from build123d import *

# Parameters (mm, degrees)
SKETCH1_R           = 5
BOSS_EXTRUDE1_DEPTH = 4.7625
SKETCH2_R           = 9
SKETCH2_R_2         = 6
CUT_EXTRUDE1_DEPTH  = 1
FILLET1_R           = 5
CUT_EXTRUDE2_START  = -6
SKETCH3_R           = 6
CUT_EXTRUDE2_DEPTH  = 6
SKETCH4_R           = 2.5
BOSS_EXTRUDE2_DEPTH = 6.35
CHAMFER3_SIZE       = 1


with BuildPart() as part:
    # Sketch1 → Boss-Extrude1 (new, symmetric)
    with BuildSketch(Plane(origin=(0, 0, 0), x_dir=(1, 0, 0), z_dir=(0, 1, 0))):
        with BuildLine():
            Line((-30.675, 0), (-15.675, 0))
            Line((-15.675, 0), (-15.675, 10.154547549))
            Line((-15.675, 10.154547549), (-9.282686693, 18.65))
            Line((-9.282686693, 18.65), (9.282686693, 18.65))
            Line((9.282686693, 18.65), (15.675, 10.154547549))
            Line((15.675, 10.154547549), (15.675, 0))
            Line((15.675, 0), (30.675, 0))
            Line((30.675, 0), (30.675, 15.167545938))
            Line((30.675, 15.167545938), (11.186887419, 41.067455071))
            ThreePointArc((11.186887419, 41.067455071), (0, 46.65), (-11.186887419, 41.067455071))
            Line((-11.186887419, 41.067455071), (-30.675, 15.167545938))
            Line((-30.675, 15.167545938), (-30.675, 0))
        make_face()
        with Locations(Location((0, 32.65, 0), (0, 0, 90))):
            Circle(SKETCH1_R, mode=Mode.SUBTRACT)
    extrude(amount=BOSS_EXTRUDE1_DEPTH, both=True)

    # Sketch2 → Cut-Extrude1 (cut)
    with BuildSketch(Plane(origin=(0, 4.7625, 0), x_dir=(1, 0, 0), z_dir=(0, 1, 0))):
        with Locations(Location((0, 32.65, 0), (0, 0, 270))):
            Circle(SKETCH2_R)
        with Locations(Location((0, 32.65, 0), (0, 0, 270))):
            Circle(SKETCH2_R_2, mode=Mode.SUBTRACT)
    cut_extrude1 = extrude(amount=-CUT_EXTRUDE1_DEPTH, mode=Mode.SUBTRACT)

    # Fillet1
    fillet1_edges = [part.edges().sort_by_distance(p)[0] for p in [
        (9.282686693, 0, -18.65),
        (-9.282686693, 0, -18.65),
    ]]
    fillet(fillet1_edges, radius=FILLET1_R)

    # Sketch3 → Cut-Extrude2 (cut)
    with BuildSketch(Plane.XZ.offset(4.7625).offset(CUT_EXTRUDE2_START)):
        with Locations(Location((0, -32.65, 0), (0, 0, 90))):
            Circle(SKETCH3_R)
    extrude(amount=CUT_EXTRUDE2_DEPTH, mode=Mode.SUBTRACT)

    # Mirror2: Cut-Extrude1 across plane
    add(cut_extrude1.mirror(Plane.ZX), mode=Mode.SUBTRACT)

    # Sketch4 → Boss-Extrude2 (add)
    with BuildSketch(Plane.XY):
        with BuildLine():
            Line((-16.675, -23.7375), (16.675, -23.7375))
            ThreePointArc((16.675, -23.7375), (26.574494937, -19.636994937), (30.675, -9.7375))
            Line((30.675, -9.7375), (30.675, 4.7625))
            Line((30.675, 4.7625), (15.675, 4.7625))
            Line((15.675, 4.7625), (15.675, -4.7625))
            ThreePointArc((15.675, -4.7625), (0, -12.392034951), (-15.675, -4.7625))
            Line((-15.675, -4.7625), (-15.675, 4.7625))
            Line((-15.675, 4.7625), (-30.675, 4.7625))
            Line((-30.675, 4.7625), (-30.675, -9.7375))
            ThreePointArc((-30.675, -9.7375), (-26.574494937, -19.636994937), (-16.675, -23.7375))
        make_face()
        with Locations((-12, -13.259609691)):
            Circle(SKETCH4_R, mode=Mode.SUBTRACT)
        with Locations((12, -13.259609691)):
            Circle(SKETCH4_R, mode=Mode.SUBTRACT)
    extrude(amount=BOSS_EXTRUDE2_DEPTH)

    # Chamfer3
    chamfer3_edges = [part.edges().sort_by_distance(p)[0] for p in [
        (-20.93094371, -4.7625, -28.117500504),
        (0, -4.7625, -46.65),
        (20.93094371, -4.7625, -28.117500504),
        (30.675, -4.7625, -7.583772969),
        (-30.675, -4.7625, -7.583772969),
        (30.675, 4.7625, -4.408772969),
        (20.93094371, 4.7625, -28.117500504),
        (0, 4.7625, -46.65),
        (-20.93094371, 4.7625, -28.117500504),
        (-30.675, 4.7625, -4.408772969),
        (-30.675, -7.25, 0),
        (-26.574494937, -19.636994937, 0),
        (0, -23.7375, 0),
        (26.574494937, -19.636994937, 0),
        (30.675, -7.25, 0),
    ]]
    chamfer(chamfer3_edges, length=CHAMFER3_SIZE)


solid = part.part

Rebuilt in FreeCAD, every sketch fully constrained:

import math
import FreeCAD as App
import Part
import Sketcher


def edges_at(feature, points):
    """Names of the edges that pass closest to the given points."""
    edges = feature.Shape.Edges
    near = lambda p: min(range(len(edges)), key=lambda i: edges[i].distToShape(Part.Vertex(*p))[0])
    return sorted({f"Edge{near(p) + 1}" for p in points})

doc = App.newDocument("Part")
params = doc.addObject("Spreadsheet::Sheet", "Params")
for row, (alias, value) in enumerate([
    ("sketch1_diameter", "10 mm"),
    ("sketch1_radius", "14 mm"),
    ("sketch1_width", "15 mm"),
    ("pad1_length", "9.525 mm"),
    ("sketch2_diameter", "18 mm"),
    ("sketch2_diameter2", "12 mm"),
    ("pocket1_length", "1 mm"),
    ("fillet_radius", "5 mm"),
    ("sketch3_diameter", "12 mm"),
    ("pocket2_length", "6 mm"),
    ("sketch4_diameter", "5 mm"),
    ("sketch4_radius", "14 mm"),
    ("sketch4_width", "15 mm"),
    ("sketch4_height", "14.5 mm"),
    ("sketch4_width2", "33.35 mm"),
    ("pad2_length", "6.35 mm"),
    ("chamfer_size", "1 mm"),
], start=1):
    params.set(f"A{row}", alias)
    params.set(f"B{row}", "=" + value)
    params.setAlias(f"B{row}", alias)

body = doc.addObject("PartDesign::Body", "Body")

# Sketch on XZ plane
sketch1 = body.newObject("Sketcher::SketchObject", "Sketch")
sketch1.AttachmentSupport = (doc.getObject("XZ_Plane"), [""])
sketch1.MapMode = "FlatFace"
sketch1.addGeometry([
    Part.LineSegment(App.Vector(-31, 0, 0), App.Vector(-16, 0, 0)),  # 0
    Part.LineSegment(App.Vector(-16, 0, 0), App.Vector(-16, -10, 0)),  # 1
    Part.LineSegment(App.Vector(-16, -10, 0), App.Vector(-9, -19, 0)),  # 2
    Part.LineSegment(App.Vector(-9, -19, 0), App.Vector(9, -19, 0)),  # 3
    Part.LineSegment(App.Vector(9, -19, 0), App.Vector(16, -10, 0)),  # 4
    Part.LineSegment(App.Vector(16, -10, 0), App.Vector(16, 0, 0)),  # 5
    Part.LineSegment(App.Vector(16, 0, 0), App.Vector(31, 0, 0)),  # 6
    Part.LineSegment(App.Vector(31, 0, 0), App.Vector(31, -15, 0)),  # 7
    Part.LineSegment(App.Vector(31, -15, 0), App.Vector(11, -41, 0)),  # 8
    Part.ArcOfCircle(Part.Circle(App.Vector(0, -33, 0), App.Vector(0, 0, 1), 14), math.radians(-143), math.radians(-37)),  # 9
    Part.LineSegment(App.Vector(-11, -41, 0), App.Vector(-31, -15, 0)),  # 10
    Part.LineSegment(App.Vector(-31, -15, 0), App.Vector(-31, 0, 0)),  # 11
    Part.Circle(App.Vector(0, -33, 0), App.Vector(0, 0, 1), 5),  # 12
], False)
sketch1.addConstraint([
    Sketcher.Constraint("Coincident", 0, 2, 1, 1),
    Sketcher.Constraint("Coincident", 1, 2, 2, 1),
    Sketcher.Constraint("Coincident", 2, 2, 3, 1),
    Sketcher.Constraint("Coincident", 3, 2, 4, 1),
    Sketcher.Constraint("Coincident", 4, 2, 5, 1),
    Sketcher.Constraint("Coincident", 5, 2, 6, 1),
    Sketcher.Constraint("Coincident", 6, 2, 7, 1),
    Sketcher.Constraint("Coincident", 7, 2, 8, 1),
    Sketcher.Constraint("Tangent", 8, 2, 9, 2),
    Sketcher.Constraint("Tangent", 9, 1, 10, 1),
    Sketcher.Constraint("Coincident", 10, 2, 11, 1),
    Sketcher.Constraint("Coincident", 11, 2, 0, 1),
    Sketcher.Constraint("Horizontal", 0),
    Sketcher.Constraint("Vertical", 1),
    Sketcher.Constraint("Horizontal", 3),
    Sketcher.Constraint("Vertical", 5),
    Sketcher.Constraint("Horizontal", 6),
    Sketcher.Constraint("Vertical", 7),
    Sketcher.Constraint("Vertical", 11),
    Sketcher.Constraint("Coincident", 12, 3, 9, 3),
    Sketcher.Constraint("Symmetric", 0, 2, 5, 2, -1, 1),
    Sketcher.Constraint("Symmetric", 8, 2, 9, 1, -2),
    Sketcher.Constraint("Symmetric", 6, 2, 11, 2, -2),
    Sketcher.Constraint("Parallel", 4, 8),
    Sketcher.Constraint("Parallel", 2, 10),
    Sketcher.Constraint("Horizontal", 1, 2, 4, 2),
    Sketcher.Constraint("Diameter", 12, 10.0),
    Sketcher.Constraint("Radius", 9, 14.0),
    Sketcher.Constraint("DistanceX", 0, 1, 0, 2, 15.0),
    Sketcher.Constraint("DistanceY", 9, 3, 2, 2, 14.0),
    Sketcher.Constraint("DistanceY", 9, 3, -1, 1, 32.65),
    Sketcher.Constraint("DistanceX", 1, 2, 4, 2, 31.35),
    Sketcher.Constraint("DistanceY", 7, 2, 4, 2, 5.012998),
    Sketcher.Constraint("DistanceX", 3, 2, 8, 2, 1.904201),
])
sketch1.setExpression("Constraints[26]", "Params.sketch1_diameter")
sketch1.setExpression("Constraints[27]", "Params.sketch1_radius")
sketch1.setExpression("Constraints[28]", "Params.sketch1_width")
pad1 = body.newObject("PartDesign::Pad", "Pad")
pad1.Profile = sketch1
pad1.setExpression("Length", "Params.pad1_length")
pad1.Midplane = True

# Sketch on XZ plane
sketch2 = body.newObject("Sketcher::SketchObject", "Sketch001")
sketch2.AttachmentSupport = (doc.getObject("XZ_Plane"), [""])
sketch2.MapMode = "FlatFace"
sketch2.AttachmentOffset = App.Placement(App.Vector(0, 0, -4.7625), App.Rotation())
sketch2.addGeometry([
    Part.Circle(App.Vector(0, -33, 0), App.Vector(0, 0, 1), 9),
    Part.Circle(App.Vector(0, -33, 0), App.Vector(0, 0, 1), 6),
], False)
sketch2.addConstraint([
    Sketcher.Constraint("Coincident", 1, 3, 0, 3),
    Sketcher.Constraint("PointOnObject", 0, 3, -2),
    Sketcher.Constraint("Diameter", 0, 18.0),
    Sketcher.Constraint("Diameter", 1, 12.0),
    Sketcher.Constraint("DistanceY", 0, 3, -1, 1, 32.65),
])
sketch2.setExpression("Constraints[2]", "Params.sketch2_diameter")
sketch2.setExpression("Constraints[3]", "Params.sketch2_diameter2")
pocket1 = body.newObject("PartDesign::Pocket", "Pocket")
pocket1.Profile = sketch2
pocket1.setExpression("Length", "Params.pocket1_length")
pocket1.Reversed = True
doc.recompute()

fillet = body.newObject("PartDesign::Fillet", "Fillet")
fillet.Base = (pocket1, edges_at(pocket1, [(9.283, 0, -18.65), (-9.283, 0, -18.65)]))
fillet.setExpression("Radius", "Params.fillet_radius")

# Sketch on XZ plane
sketch3 = body.newObject("Sketcher::SketchObject", "Sketch002")
sketch3.AttachmentSupport = (doc.getObject("XZ_Plane"), [""])
sketch3.MapMode = "FlatFace"
sketch3.AttachmentOffset = App.Placement(App.Vector(0, 0, -1.2375), App.Rotation())
sketch3.addGeometry(Part.Circle(App.Vector(0, -33, 0), App.Vector(0, 0, 1), 6), False)
sketch3.addConstraint([
    Sketcher.Constraint("PointOnObject", 0, 3, -2),
    Sketcher.Constraint("Diameter", 0, 12.0),
    Sketcher.Constraint("DistanceY", 0, 3, -1, 1, 32.65),
])
sketch3.setExpression("Constraints[1]", "Params.sketch3_diameter")
pocket2 = body.newObject("PartDesign::Pocket", "Pocket001")
pocket2.Profile = sketch3
pocket2.setExpression("Length", "Params.pocket2_length")
pocket2.Reversed = True
doc.recompute()

mirrored = body.newObject("PartDesign::Mirrored", "Mirrored")
mirrored.Originals = [pocket1]
mirrored.MirrorPlane = (doc.getObject("XZ_Plane"), [""])
body.Tip = mirrored

# Sketch on XY plane
sketch4 = body.newObject("Sketcher::SketchObject", "Sketch003")
sketch4.AttachmentSupport = (doc.getObject("XY_Plane"), [""])
sketch4.MapMode = "FlatFace"
sketch4.addGeometry([
    Part.LineSegment(App.Vector(-16.7, -23.7, 0), App.Vector(16.7, -23.7, 0)),  # 0
    Part.ArcOfCircle(Part.Circle(App.Vector(16.7, -9.7, 0), App.Vector(0, 0, 1), 14), math.radians(-90), math.radians(0)),  # 1
    Part.LineSegment(App.Vector(30.7, -9.7, 0), App.Vector(30.7, 4.8, 0)),  # 2
    Part.LineSegment(App.Vector(30.7, 4.8, 0), App.Vector(15.7, 4.8, 0)),  # 3
    Part.LineSegment(App.Vector(15.7, 4.8, 0), App.Vector(15.7, -4.8, 0)),  # 4
    Part.ArcOfCircle(Part.Circle(App.Vector(0, 7.5, 0), App.Vector(0, 0, 1), 19.9), math.radians(-142), math.radians(-38)),  # 5
    Part.LineSegment(App.Vector(-15.7, -4.8, 0), App.Vector(-15.7, 4.8, 0)),  # 6
    Part.LineSegment(App.Vector(-15.7, 4.8, 0), App.Vector(-30.7, 4.8, 0)),  # 7
    Part.LineSegment(App.Vector(-30.7, 4.8, 0), App.Vector(-30.7, -9.7, 0)),  # 8
    Part.ArcOfCircle(Part.Circle(App.Vector(-16.7, -9.7, 0), App.Vector(0, 0, 1), 14), math.radians(180), math.radians(270)),  # 9
    Part.Circle(App.Vector(-12, -13.3, 0), App.Vector(0, 0, 1), 2.5),  # 10
    Part.Circle(App.Vector(12, -13.3, 0), App.Vector(0, 0, 1), 2.5),  # 11
], False)
sketch4.addConstraint([
    Sketcher.Constraint("Tangent", 0, 2, 1, 1),
    Sketcher.Constraint("Tangent", 1, 2, 2, 1),
    Sketcher.Constraint("Coincident", 2, 2, 3, 1),
    Sketcher.Constraint("Coincident", 3, 2, 4, 1),
    Sketcher.Constraint("Coincident", 4, 2, 5, 2),
    Sketcher.Constraint("Coincident", 5, 1, 6, 1),
    Sketcher.Constraint("Coincident", 6, 2, 7, 1),
    Sketcher.Constraint("Coincident", 7, 2, 8, 1),
    Sketcher.Constraint("Tangent", 8, 2, 9, 1),
    Sketcher.Constraint("Tangent", 9, 2, 0, 1),
    Sketcher.Constraint("Horizontal", 0),
    Sketcher.Constraint("Vertical", 2),
    Sketcher.Constraint("Horizontal", 3),
    Sketcher.Constraint("Vertical", 4),
    Sketcher.Constraint("Vertical", 6),
    Sketcher.Constraint("Horizontal", 7),
    Sketcher.Constraint("Vertical", 8),
    Sketcher.Constraint("Equal", 1, 9),
    Sketcher.Constraint("Equal", 10, 11),
    Sketcher.Constraint("Symmetric", 3, 2, 5, 1, -1, 1),
    Sketcher.Constraint("Symmetric", 10, 3, 11, 3, -2),
    Sketcher.Constraint("Symmetric", 2, 2, 7, 2, -2),
    Sketcher.Constraint("PointOnObject", 5, 3, -2),
    Sketcher.Constraint("Diameter", 10, 5.0),
    Sketcher.Constraint("Radius", 1, 14.0),
    Sketcher.Constraint("DistanceX", 3, 2, 3, 1, 15.0),
    Sketcher.Constraint("DistanceY", 2, 1, 2, 2, 14.5),
    Sketcher.Constraint("DistanceX", 10, 3, -1, 1, 12.0),
    Sketcher.Constraint("DistanceX", 0, 1, 0, 2, 33.35),
    Sketcher.Constraint("DistanceY", 4, 2, 4, 1, 9.525),
    Sketcher.Constraint("DistanceY", -1, 1, 5, 3, 7.525),
    Sketcher.Constraint("DistanceY", 10, 3, -1, 1, 13.25961),
])
sketch4.setExpression("Constraints[23]", "Params.sketch4_diameter")
sketch4.setExpression("Constraints[24]", "Params.sketch4_radius")
sketch4.setExpression("Constraints[25]", "Params.sketch4_width")
sketch4.setExpression("Constraints[26]", "Params.sketch4_height")
sketch4.setExpression("Constraints[28]", "Params.sketch4_width2")
pad2 = body.newObject("PartDesign::Pad", "Pad001")
pad2.Profile = sketch4
pad2.setExpression("Length", "Params.pad2_length")
doc.recompute()

chamfer = body.newObject("PartDesign::Chamfer", "Chamfer")
chamfer.Base = (pad2, edges_at(pad2, [
    (-20.931, -4.763, -28.118),
    (0, -4.763, -46.65),
    (20.931, -4.763, -28.118),
    (30.675, -4.763, -7.584),
    (-30.675, -4.763, -7.584),
    (30.675, 4.763, -4.409),
    (20.931, 4.763, -28.118),
    (0, 4.763, -46.65),
    (-20.931, 4.763, -28.118),
    (-30.675, 4.763, -4.409),
    (-30.675, -7.25, 0),
    (-26.574, -19.637, 0),
    (0, -23.738, 0),
    (26.574, -19.637, 0),
    (30.675, -7.25, 0),
]))
chamfer.setExpression("Size", "Params.chamfer_size")

doc.recompute()
